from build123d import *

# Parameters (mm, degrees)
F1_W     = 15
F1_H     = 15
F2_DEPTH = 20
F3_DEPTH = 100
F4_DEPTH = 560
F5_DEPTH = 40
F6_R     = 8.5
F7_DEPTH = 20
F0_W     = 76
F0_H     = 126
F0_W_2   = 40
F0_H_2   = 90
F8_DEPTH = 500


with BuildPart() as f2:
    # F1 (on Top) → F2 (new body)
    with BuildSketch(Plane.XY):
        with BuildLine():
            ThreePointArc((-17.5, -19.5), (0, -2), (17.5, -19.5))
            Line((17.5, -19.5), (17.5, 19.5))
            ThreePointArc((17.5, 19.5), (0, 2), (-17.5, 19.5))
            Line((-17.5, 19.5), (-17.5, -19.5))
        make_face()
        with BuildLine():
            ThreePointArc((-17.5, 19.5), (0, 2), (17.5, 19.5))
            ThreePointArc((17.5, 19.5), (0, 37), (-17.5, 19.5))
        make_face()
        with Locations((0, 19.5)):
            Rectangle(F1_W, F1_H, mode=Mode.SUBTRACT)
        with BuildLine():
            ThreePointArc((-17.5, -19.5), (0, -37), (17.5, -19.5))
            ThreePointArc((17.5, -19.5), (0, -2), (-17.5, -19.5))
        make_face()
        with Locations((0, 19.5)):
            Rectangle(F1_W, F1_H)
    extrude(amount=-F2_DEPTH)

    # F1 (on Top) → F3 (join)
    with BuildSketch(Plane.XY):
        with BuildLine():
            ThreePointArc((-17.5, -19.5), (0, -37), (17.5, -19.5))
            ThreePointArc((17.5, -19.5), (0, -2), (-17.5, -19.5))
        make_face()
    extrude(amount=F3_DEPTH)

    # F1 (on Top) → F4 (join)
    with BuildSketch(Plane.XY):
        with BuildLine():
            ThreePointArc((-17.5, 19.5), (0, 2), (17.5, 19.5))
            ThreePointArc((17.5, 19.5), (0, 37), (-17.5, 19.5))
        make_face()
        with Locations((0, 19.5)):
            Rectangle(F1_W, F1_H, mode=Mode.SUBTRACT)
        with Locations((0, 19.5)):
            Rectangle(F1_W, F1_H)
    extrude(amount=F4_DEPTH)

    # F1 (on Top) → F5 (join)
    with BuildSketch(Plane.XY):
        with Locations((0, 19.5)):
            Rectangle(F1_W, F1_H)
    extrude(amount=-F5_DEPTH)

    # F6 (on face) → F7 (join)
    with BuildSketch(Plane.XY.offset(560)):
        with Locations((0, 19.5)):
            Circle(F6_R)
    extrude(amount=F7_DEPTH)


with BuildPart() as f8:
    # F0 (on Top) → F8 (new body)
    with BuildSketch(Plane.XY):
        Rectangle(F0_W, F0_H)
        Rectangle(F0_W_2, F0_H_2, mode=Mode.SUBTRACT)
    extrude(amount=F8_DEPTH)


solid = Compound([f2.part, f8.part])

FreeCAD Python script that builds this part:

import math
import FreeCAD as App
import Part
import Sketcher

V = App.Vector


def add_polygon(sketch, points):
    """Adds a closed chain of lines whose ends are joined by coincident constraints."""
    first, n = sketch.GeometryCount, len(points)
    for a, b in zip(points, points[1:] + points[:1]):
        sketch.addGeometry(Part.LineSegment(App.Vector(*a, 0), App.Vector(*b, 0)), False)
    for i in range(n):
        sketch.addConstraint(Sketcher.Constraint("Coincident", first + i, 2, first + (i + 1) % n, 1))

doc = App.newDocument("Part")
body = doc.addObject("PartDesign::Body", "Body")

sketch1 = body.newObject("Sketcher::SketchObject", "Sketch")
sketch1.AttachmentSupport = (doc.getObject("XY_Plane"), [""])
sketch1.MapMode = "FlatFace"
sketch1.addGeometry(Part.LineSegment(V(-18, 20, 0), V(-18, -20, 0)), False)
sketch1.addGeometry(Part.ArcOfCircle(Part.Circle(V(0, -20, 0), V(0, 0, 1), 18), math.radians(180), math.radians(360)), False)
sketch1.addGeometry(Part.LineSegment(V(18, -20, 0), V(18, 20, 0)), False)
sketch1.addGeometry(Part.ArcOfCircle(Part.Circle(V(0, 20, 0), V(0, 0, 1), 18), math.radians(0), math.radians(180)), False)
sketch1.addConstraint(Sketcher.Constraint("Tangent", 0, 2, 1, 1))
sketch1.addConstraint(Sketcher.Constraint("Tangent", 1, 2, 2, 1))
sketch1.addConstraint(Sketcher.Constraint("Tangent", 2, 2, 3, 1))
sketch1.addConstraint(Sketcher.Constraint("Tangent", 3, 2, 0, 1))
sketch1.addConstraint(Sketcher.Constraint("Vertical", 0))
sketch1.addConstraint(Sketcher.Constraint("Vertical", 2))
sketch1.addConstraint(Sketcher.Constraint("Symmetric", 1, 3, 3, 3, -1, 1))
sketch1.addConstraint(Sketcher.Constraint("Radius", 1, 17.5))
sketch1.addConstraint(Sketcher.Constraint("DistanceY", 0, 2, 0, 1, 39.0))
pad1 = body.newObject("PartDesign::Pad", "Pad")
pad1.Profile = sketch1
pad1.Length = 20
pad1.Reversed = True

sketch2 = body.newObject("Sketcher::SketchObject", "Sketch001")
sketch2.AttachmentSupport = (doc.getObject("XY_Plane"), [""])
sketch2.MapMode = "FlatFace"
sketch2.addGeometry(Part.Circle(V(0, -20, 0), V(0, 0, 1), 18), False)
sketch2.addConstraint(Sketcher.Constraint("PointOnObject", 0, 3, -2))
sketch2.addConstraint(Sketcher.Constraint("Diameter", 0, 35.0))
sketch2.addConstraint(Sketcher.Constraint("DistanceY", 0, 3, -1, 1, 19.5))
pad2 = body.newObject("PartDesign::Pad", "Pad001")
pad2.Profile = sketch2
pad2.Length = 100

sketch3 = body.newObject("Sketcher::SketchObject", "Sketch002")
sketch3.AttachmentSupport = (doc.getObject("XY_Plane"), [""])
sketch3.MapMode = "FlatFace"
sketch3.addGeometry(Part.Circle(V(0, 20, 0), V(0, 0, 1), 18), False)
sketch3.addConstraint(Sketcher.Constraint("PointOnObject", 0, 3, -2))
sketch3.addConstraint(Sketcher.Constraint("Diameter", 0, 35.0))
sketch3.addConstraint(Sketcher.Constraint("DistanceY", -1, 1, 0, 3, 19.5))
pad3 = body.newObject("PartDesign::Pad", "Pad002")
pad3.Profile = sketch3
pad3.Length = 560

sketch4 = body.newObject("Sketcher::SketchObject", "Sketch003")
sketch4.AttachmentSupport = (doc.getObject("XY_Plane"), [""])
sketch4.MapMode = "FlatFace"
add_polygon(sketch4, [(-8, 27), (-8, 12), (8, 12), (8, 27)])
sketch4.addConstraint(Sketcher.Constraint("Vertical", 0))
sketch4.addConstraint(Sketcher.Constraint("Horizontal", 1))
sketch4.addConstraint(Sketcher.Constraint("Vertical", 2))
sketch4.addConstraint(Sketcher.Constraint("Horizontal", 3))
sketch4.addConstraint(Sketcher.Constraint("Equal", 3, 0))
sketch4.addConstraint(Sketcher.Constraint("DistanceX", 1, 1, 1, 2, 15.0))
sketch4.addConstraint(Sketcher.Constraint("DistanceY", -1, 1, 0, 2, 12.0))
sketch4.addConstraint(Sketcher.Constraint("DistanceX", 0, 2, -1, 1, 7.5))
pad4 = body.newObject("PartDesign::Pad", "Pad003")
pad4.Profile = sketch4
pad4.Length = 40
pad4.Reversed = True

sketch5 = body.newObject("Sketcher::SketchObject", "Sketch004")
sketch5.AttachmentSupport = (doc.getObject("XY_Plane"), [""])
sketch5.MapMode = "FlatFace"
sketch5.AttachmentOffset = App.Placement(V(0, 0, 560), App.Rotation())
sketch5.addGeometry(Part.Circle(V(0, 20, 0), V(0, 0, 1), 8), False)
sketch5.addConstraint(Sketcher.Constraint("PointOnObject", 0, 3, -2))
sketch5.addConstraint(Sketcher.Constraint("Diameter", 0, 17.0))
sketch5.addConstraint(Sketcher.Constraint("DistanceY", -1, 1, 0, 3, 19.5))
pad5 = body.newObject("PartDesign::Pad", "Pad004")
pad5.Profile = sketch5
pad5.Length = 20
body2 = doc.addObject("PartDesign::Body", "Body001")

sketch6 = body2.newObject("Sketcher::SketchObject", "Sketch005")
sketch6.AttachmentSupport = (doc.getObject("XY_Plane001"), [""])
sketch6.MapMode = "FlatFace"
add_polygon(sketch6, [(-38, 63), (-38, -63), (38, -63), (38, 63)])
add_polygon(sketch6, [(20, -45), (-20, -45), (-20, 45), (20, 45)])
sketch6.addConstraint(Sketcher.Constraint("Vertical", 0))
sketch6.addConstraint(Sketcher.Constraint("Horizontal", 1))
sketch6.addConstraint(Sketcher.Constraint("Vertical", 2))
sketch6.addConstraint(Sketcher.Constraint("Horizontal", 3))
sketch6.addConstraint(Sketcher.Constraint("Horizontal", 4))
sketch6.addConstraint(Sketcher.Constraint("Vertical", 5))
sketch6.addConstraint(Sketcher.Constraint("Horizontal", 6))
sketch6.addConstraint(Sketcher.Constraint("Vertical", 7))
sketch6.addConstraint(Sketcher.Constraint("Symmetric", 0, 2, 2, 2, -1, 1))
sketch6.addConstraint(Sketcher.Constraint("Symmetric", 4, 2, 6, 2, -1, 1))
sketch6.addConstraint(Sketcher.Constraint("DistanceX", 1, 1, 1, 2, 76.0))
sketch6.addConstraint(Sketcher.Constraint("DistanceX", 4, 2, 4, 1, 40.0))
sketch6.addConstraint(Sketcher.Constraint("DistanceY", 0, 2, 0, 1, 126.0))
sketch6.addConstraint(Sketcher.Constraint("DistanceY", 5, 1, 5, 2, 90.0))
pad6 = body2.newObject("PartDesign::Pad", "Pad005")
pad6.Profile = sketch6
pad6.Length = 500

doc.recompute()
